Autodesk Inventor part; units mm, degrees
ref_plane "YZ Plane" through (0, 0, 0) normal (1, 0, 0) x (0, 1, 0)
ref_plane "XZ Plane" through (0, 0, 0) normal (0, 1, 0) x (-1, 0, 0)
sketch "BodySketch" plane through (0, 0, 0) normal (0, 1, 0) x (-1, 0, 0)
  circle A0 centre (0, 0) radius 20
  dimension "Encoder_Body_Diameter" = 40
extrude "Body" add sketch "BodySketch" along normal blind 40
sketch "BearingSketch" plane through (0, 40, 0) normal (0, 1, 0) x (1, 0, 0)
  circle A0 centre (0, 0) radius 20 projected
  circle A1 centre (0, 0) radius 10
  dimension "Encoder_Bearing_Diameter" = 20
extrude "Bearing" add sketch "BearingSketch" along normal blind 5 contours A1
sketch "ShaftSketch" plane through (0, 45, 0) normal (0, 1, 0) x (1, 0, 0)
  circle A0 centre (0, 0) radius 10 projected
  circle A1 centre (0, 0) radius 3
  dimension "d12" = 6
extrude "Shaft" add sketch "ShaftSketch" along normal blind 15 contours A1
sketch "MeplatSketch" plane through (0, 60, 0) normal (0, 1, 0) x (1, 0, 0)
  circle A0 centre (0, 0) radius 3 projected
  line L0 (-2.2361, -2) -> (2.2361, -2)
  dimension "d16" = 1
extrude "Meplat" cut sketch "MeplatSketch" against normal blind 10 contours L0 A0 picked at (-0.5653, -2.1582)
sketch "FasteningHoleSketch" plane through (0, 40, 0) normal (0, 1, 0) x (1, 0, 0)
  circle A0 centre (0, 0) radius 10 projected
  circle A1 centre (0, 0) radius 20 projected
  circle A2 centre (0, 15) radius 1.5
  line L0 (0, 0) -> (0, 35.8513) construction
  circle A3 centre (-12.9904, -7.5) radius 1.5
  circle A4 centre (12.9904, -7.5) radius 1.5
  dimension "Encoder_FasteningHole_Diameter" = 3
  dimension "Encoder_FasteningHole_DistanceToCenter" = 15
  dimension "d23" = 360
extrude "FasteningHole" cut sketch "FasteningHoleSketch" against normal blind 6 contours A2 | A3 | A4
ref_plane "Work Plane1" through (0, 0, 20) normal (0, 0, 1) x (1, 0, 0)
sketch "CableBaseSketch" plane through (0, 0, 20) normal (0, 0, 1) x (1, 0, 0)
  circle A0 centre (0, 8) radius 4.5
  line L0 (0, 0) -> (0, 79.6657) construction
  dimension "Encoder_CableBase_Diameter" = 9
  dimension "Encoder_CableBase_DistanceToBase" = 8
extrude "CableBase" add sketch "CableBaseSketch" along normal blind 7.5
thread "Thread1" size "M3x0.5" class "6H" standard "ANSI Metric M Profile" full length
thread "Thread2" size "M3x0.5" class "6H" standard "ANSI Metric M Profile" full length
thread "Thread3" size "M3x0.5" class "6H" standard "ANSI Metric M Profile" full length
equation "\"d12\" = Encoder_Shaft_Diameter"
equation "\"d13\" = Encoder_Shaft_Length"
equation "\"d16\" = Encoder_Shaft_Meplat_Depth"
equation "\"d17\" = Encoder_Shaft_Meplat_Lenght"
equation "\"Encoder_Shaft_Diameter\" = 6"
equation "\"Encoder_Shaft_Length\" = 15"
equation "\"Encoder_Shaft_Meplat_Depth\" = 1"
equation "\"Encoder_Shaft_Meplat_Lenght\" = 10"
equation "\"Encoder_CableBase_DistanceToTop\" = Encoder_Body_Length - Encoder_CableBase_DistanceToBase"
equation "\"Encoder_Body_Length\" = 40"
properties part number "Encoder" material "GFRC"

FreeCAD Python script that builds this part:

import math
import FreeCAD as App
import Part
import Sketcher
from FreeCAD import Vector
Q = App.Units.Quantity

doc = App.newDocument("Part")
params = doc.addObject("Spreadsheet::Sheet", "Params")
for row, (alias, value) in enumerate([
    ("sketch1_diameter", "40 mm"),
    ("pad1_length", "40 mm"),
    ("sketch2_diameter", "20 mm"),
    ("pad2_length", "5 mm"),
    ("sketch3_diameter", "6 mm"),
    ("pad3_length", "15 mm"),
    ("sketch4_radius", "3 mm"),
    ("pocket1_length", "10 mm"),
    ("sketch5_diameter", "3 mm"),
    ("pocket2_length", "6 mm"),
    ("sketch6_diameter", "9 mm"),
    ("pad4_length", "7.5 mm"),
], start=1):
    params.set(f"A{row}", alias)
    params.set(f"B{row}", "=" + value)
    params.setAlias(f"B{row}", alias)

body = doc.addObject("PartDesign::Body", "Body")
body.AllowCompound = True

# Sketch on XZ plane
sketch1 = doc.addObject("Sketcher::SketchObject", "Sketch")
body.addObject(sketch1)
sketch1.AttachmentSupport = (doc.XZ_Plane, [""])
sketch1.MapMode = "FlatFace"
sketch1.addGeometry(Part.Circle(Vector(0, 0, 0), Vector(0, 0, 1), 20), False)
sketch1.addConstraint([
    Sketcher.Constraint("Coincident", 0, 3, -1, 1),
    Sketcher.Constraint("Diameter", 0, Q("40 mm")),
])
sketch1.setExpression("Constraints[1]", "Params.sketch1_diameter")
pad1 = doc.addObject("PartDesign::Pad", "Pad")
body.addObject(pad1)
pad1.Profile = sketch1
pad1.setExpression("Length", "Params.pad1_length")
pad1.Reversed = True

# Sketch on XZ plane
sketch2 = doc.addObject("Sketcher::SketchObject", "Sketch001")
body.addObject(sketch2)
sketch2.AttachmentSupport = (doc.XZ_Plane, [""])
sketch2.MapMode = "FlatFace"
sketch2.AttachmentOffset = App.Placement(Vector(0, 0, -40), App.Rotation())
sketch2.addGeometry(Part.Circle(Vector(0, 0, 0), Vector(0, 0, 1), 10), False)
sketch2.addConstraint([
    Sketcher.Constraint("Coincident", 0, 3, -1, 1),
    Sketcher.Constraint("Diameter", 0, Q("20 mm")),
])
sketch2.setExpression("Constraints[1]", "Params.sketch2_diameter")
pad2 = doc.addObject("PartDesign::Pad", "Pad001")
body.addObject(pad2)
pad2.Profile = sketch2
pad2.setExpression("Length", "Params.pad2_length")
pad2.Reversed = True

# Sketch on XZ plane
sketch3 = doc.addObject("Sketcher::SketchObject", "Sketch002")
body.addObject(sketch3)
sketch3.AttachmentSupport = (doc.XZ_Plane, [""])
sketch3.MapMode = "FlatFace"
sketch3.AttachmentOffset = App.Placement(Vector(0, 0, -45), App.Rotation())
sketch3.addGeometry(Part.Circle(Vector(0, 0, 0), Vector(0, 0, 1), 3), False)
sketch3.addConstraint([
    Sketcher.Constraint("Coincident", 0, 3, -1, 1),
    Sketcher.Constraint("Diameter", 0, Q("6 mm")),
])
sketch3.setExpression("Constraints[1]", "Params.sketch3_diameter")
pad3 = doc.addObject("PartDesign::Pad", "Pad002")
body.addObject(pad3)
pad3.Profile = sketch3
pad3.setExpression("Length", "Params.pad3_length")
pad3.Reversed = True

# Sketch on XZ plane
sketch4 = doc.addObject("Sketcher::SketchObject", "Sketch003")
body.addObject(sketch4)
sketch4.AttachmentSupport = (doc.XZ_Plane, [""])
sketch4.MapMode = "FlatFace"
sketch4.AttachmentOffset = App.Placement(Vector(0, 0, -60), App.Rotation())
sketch4.addGeometry([
    Part.LineSegment(Vector(2.2, 2, 0), Vector(-2.2, 2, 0)),
    Part.ArcOfCircle(Part.Circle(Vector(0, 0, 0), Vector(0, 0, 1), 3), math.radians(42), math.radians(138)),
], False)
sketch4.addConstraint([
    Sketcher.Constraint("Coincident", 0, 1, 1, 1),
    Sketcher.Constraint("Coincident", 1, 2, 0, 2),
    Sketcher.Constraint("Horizontal", 0),
    Sketcher.Constraint("Coincident", 1, 3, -1, 1),
    Sketcher.Constraint("Radius", 1, Q("3 mm")),
    Sketcher.Constraint("DistanceY", -1, 1, 0, 1, Q("2 mm")),
])
sketch4.setExpression("Constraints[4]", "Params.sketch4_radius")
pocket1 = doc.addObject("PartDesign::Pocket", "Pocket")
body.addObject(pocket1)
pocket1.Profile = sketch4
pocket1.setExpression("Length", "Params.pocket1_length")
pocket1.Reversed = True

# Sketch on XZ plane
sketch5 = doc.addObject("Sketcher::SketchObject", "Sketch004")
body.addObject(sketch5)
sketch5.AttachmentSupport = (doc.XZ_Plane, [""])
sketch5.MapMode = "FlatFace"
sketch5.AttachmentOffset = App.Placement(Vector(0, 0, -40), App.Rotation())
sketch5.addGeometry([
    Part.Circle(Vector(0, -15, 0), Vector(0, 0, 1), 1.5),
    Part.Circle(Vector(-13, 7.5, 0), Vector(0, 0, 1), 1.5),
    Part.Circle(Vector(13, 7.5, 0), Vector(0, 0, 1), 1.5),
], False)
sketch5.addConstraint([
    Sketcher.Constraint("Equal", 0, 1),
    Sketcher.Constraint("Equal", 1, 2),
    Sketcher.Constraint("Symmetric", 1, 3, 2, 3, -2),
    Sketcher.Constraint("PointOnObject", 0, 3, -2),
    Sketcher.Constraint("Diameter", 0, Q("3 mm")),
    Sketcher.Constraint("DistanceY", 0, 3, -1, 1, Q("15 mm")),
    Sketcher.Constraint("DistanceY", -1, 1, 1, 3, Q("7.5 mm")),
    Sketcher.Constraint("DistanceX", 1, 3, -1, 1, Q("12.9904 mm")),
])
sketch5.setExpression("Constraints[4]", "Params.sketch5_diameter")
pocket2 = doc.addObject("PartDesign::Pocket", "Pocket001")
body.addObject(pocket2)
pocket2.Profile = sketch5
pocket2.setExpression("Length", "Params.pocket2_length")
pocket2.Reversed = True

# Sketch on XY plane
sketch6 = doc.addObject("Sketcher::SketchObject", "Sketch005")
body.addObject(sketch6)
sketch6.AttachmentSupport = (doc.XY_Plane, [""])
sketch6.MapMode = "FlatFace"
sketch6.AttachmentOffset = App.Placement(Vector(0, 0, 20), App.Rotation())
sketch6.addGeometry(Part.Circle(Vector(0, 8, 0), Vector(0, 0, 1), 4.5), False)
sketch6.addConstraint([
    Sketcher.Constraint("PointOnObject", 0, 3, -2),
    Sketcher.Constraint("Diameter", 0, Q("9 mm")),
    Sketcher.Constraint("DistanceY", -1, 1, 0, 3, Q("8 mm")),
])
sketch6.setExpression("Constraints[1]", "Params.sketch6_diameter")
pad4 = doc.addObject("PartDesign::Pad", "Pad003")
body.addObject(pad4)
pad4.Profile = sketch6
pad4.setExpression("Length", "Params.pad4_length")

doc.recompute()
